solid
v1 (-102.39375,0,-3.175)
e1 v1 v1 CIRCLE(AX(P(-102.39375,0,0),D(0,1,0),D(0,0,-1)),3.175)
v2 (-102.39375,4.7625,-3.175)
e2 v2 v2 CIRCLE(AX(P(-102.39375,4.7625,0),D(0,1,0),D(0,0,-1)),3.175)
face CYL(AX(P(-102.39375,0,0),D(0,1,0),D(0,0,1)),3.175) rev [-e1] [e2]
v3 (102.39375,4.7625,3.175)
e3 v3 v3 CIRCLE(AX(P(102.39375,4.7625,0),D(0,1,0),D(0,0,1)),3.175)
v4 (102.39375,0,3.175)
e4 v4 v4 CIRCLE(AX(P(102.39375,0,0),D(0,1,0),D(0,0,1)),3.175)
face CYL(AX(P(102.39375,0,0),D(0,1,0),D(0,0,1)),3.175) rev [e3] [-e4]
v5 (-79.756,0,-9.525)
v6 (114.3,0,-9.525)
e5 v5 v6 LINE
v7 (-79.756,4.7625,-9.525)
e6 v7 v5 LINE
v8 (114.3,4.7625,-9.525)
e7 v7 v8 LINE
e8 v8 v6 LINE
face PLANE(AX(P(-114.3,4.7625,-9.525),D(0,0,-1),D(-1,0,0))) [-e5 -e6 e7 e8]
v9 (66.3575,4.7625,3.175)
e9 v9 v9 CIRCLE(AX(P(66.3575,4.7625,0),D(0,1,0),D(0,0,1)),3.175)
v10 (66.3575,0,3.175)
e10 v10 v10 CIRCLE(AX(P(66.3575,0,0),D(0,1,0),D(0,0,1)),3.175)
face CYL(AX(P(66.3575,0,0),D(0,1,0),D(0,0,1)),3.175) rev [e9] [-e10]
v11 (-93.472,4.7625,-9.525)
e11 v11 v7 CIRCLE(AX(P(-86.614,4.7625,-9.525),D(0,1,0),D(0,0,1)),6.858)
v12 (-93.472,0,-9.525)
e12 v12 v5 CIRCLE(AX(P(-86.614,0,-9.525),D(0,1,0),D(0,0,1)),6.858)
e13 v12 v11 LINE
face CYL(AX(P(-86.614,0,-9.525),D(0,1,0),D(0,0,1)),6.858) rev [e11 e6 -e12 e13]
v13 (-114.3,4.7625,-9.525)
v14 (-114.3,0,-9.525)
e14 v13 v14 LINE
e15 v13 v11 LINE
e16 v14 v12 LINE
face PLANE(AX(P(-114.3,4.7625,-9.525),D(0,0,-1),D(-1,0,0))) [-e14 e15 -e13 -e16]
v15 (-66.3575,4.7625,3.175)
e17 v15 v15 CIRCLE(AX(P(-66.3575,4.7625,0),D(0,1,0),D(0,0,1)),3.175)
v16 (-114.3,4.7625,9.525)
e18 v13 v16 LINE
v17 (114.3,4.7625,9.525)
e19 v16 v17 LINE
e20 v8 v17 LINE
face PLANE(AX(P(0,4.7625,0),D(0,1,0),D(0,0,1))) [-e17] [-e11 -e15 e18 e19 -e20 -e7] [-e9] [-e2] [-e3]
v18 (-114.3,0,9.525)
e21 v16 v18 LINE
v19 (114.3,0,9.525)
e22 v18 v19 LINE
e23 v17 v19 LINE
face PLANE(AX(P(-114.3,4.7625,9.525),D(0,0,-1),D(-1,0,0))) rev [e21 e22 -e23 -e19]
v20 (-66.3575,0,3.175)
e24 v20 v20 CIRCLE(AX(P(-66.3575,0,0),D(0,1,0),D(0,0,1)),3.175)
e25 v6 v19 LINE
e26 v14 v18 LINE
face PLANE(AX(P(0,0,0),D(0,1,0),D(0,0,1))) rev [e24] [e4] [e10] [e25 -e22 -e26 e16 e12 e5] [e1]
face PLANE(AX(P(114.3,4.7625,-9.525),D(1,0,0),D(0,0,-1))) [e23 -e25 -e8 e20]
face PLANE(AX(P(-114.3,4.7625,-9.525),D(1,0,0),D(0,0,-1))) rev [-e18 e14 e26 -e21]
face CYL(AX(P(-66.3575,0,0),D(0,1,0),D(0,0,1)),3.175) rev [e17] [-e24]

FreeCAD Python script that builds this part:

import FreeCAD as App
import Part
import Sketcher

V = App.Vector
Q = App.Units.Quantity


def add_polygon(sketch, points):
    """Adds a closed chain of lines whose ends are joined by coincident constraints."""
    first, n = sketch.GeometryCount, len(points)
    for a, b in zip(points, points[1:] + points[:1]):
        sketch.addGeometry(Part.LineSegment(App.Vector(*a, 0), App.Vector(*b, 0)), False)
    for i in range(n):
        sketch.addConstraint(Sketcher.Constraint("Coincident", first + i, 2, first + (i + 1) % n, 1))

doc = App.newDocument("Part")
body = doc.addObject("PartDesign::Body", "Body")

sketch1 = doc.addObject("Sketcher::SketchObject", "Sketch")
body.addObject(sketch1)
sketch1.AttachmentSupport = (doc.XZ_Plane, [""])
sketch1.MapMode = "FlatFace"
add_polygon(sketch1, [(-114, -10), (-114, 10), (114, 10), (114, -10)])
sketch1.addConstraint(Sketcher.Constraint("Vertical", 0))
sketch1.addConstraint(Sketcher.Constraint("Horizontal", 1))
sketch1.addConstraint(Sketcher.Constraint("Vertical", 2))
sketch1.addConstraint(Sketcher.Constraint("Horizontal", 3))
sketch1.addConstraint(Sketcher.Constraint("Symmetric", 0, 2, 2, 2, -1, 1))
sketch1.addConstraint(Sketcher.Constraint("DistanceX", 1, 1, 1, 2, Q("9 in")))
sketch1.addConstraint(Sketcher.Constraint("DistanceY", 0, 1, 0, 2, Q("0.75 in")))
pad1 = doc.addObject("PartDesign::Pad", "Pad")
body.addObject(pad1)
pad1.Profile = sketch1
pad1.Length = Q("0.1875 in")
pad1.Reversed = True

sketch2 = doc.addObject("Sketcher::SketchObject", "Sketch001")
body.addObject(sketch2)
sketch2.AttachmentSupport = (doc.XZ_Plane, [""])
sketch2.MapMode = "FlatFace"
sketch2.AttachmentOffset = App.Placement(V(0, 0, -0.1875 * 25.4), App.Rotation())
sketch2.addGeometry(Part.Circle(V(102.4, 0, 0), V(0, 0, 1), 3.2), False)
sketch2.addGeometry(Part.Circle(V(-102.4, 0, 0), V(0, 0, 1), 3.2), False)
sketch2.addConstraint(Sketcher.Constraint("Equal", 0, 1))
sketch2.addConstraint(Sketcher.Constraint("Symmetric", 0, 3, 1, 3, -1, 1))
sketch2.addConstraint(Sketcher.Constraint("PointOnObject", 0, 3, -1))
sketch2.addConstraint(Sketcher.Constraint("Diameter", 0, Q("0.25 in")))
sketch2.addConstraint(Sketcher.Constraint("DistanceX", -1, 1, 0, 3, Q("4.03125 in")))
pocket1 = doc.addObject("PartDesign::Pocket", "Pocket")
body.addObject(pocket1)
pocket1.Profile = sketch2
pocket1.Type = "ThroughAll"
pocket1.Reversed = True

sketch3 = doc.addObject("Sketcher::SketchObject", "Sketch002")
body.addObject(sketch3)
sketch3.AttachmentSupport = (doc.XZ_Plane, [""])
sketch3.MapMode = "FlatFace"
sketch3.AttachmentOffset = App.Placement(V(0, 0, -0.1875 * 25.4), App.Rotation())
sketch3.addGeometry(Part.Circle(V(-87, -10, 0), V(0, 0, 1), 7), False)
sketch3.addConstraint(Sketcher.Constraint("Diameter", 0, Q("0.54 in")))
sketch3.addConstraint(Sketcher.Constraint("DistanceX", 0, 3, -1, 1, Q("3.41 in")))
sketch3.addConstraint(Sketcher.Constraint("DistanceY", 0, 3, -1, 1, Q("0.375 in")))
pocket2 = doc.addObject("PartDesign::Pocket", "Pocket001")
body.addObject(pocket2)
pocket2.Profile = sketch3
pocket2.Type = "ThroughAll"
pocket2.Reversed = True

sketch4 = doc.addObject("Sketcher::SketchObject", "Sketch003")
body.addObject(sketch4)
sketch4.AttachmentSupport = (doc.XZ_Plane, [""])
sketch4.MapMode = "FlatFace"
sketch4.AttachmentOffset = App.Placement(V(0, 0, -0.1875 * 25.4), App.Rotation())
sketch4.addGeometry(Part.Circle(V(-66.4, 0, 0), V(0, 0, 1), 3.2), False)
sketch4.addGeometry(Part.Circle(V(66.4, 0, 0), V(0, 0, 1), 3.2), False)
sketch4.addConstraint(Sketcher.Constraint("Equal", 0, 1))
sketch4.addConstraint(Sketcher.Constraint("Symmetric", 0, 3, 1, 3, -1, 1))
sketch4.addConstraint(Sketcher.Constraint("PointOnObject", 0, 3, -1))
sketch4.addConstraint(Sketcher.Constraint("Diameter", 0, Q("0.25 in")))
sketch4.addConstraint(Sketcher.Constraint("DistanceX", 0, 3, 1, 3, Q("5.225 in")))
pocket3 = doc.addObject("PartDesign::Pocket", "Pocket002")
body.addObject(pocket3)
pocket3.Profile = sketch4
pocket3.Type = "ThroughAll"
pocket3.Reversed = True

doc.recompute()
